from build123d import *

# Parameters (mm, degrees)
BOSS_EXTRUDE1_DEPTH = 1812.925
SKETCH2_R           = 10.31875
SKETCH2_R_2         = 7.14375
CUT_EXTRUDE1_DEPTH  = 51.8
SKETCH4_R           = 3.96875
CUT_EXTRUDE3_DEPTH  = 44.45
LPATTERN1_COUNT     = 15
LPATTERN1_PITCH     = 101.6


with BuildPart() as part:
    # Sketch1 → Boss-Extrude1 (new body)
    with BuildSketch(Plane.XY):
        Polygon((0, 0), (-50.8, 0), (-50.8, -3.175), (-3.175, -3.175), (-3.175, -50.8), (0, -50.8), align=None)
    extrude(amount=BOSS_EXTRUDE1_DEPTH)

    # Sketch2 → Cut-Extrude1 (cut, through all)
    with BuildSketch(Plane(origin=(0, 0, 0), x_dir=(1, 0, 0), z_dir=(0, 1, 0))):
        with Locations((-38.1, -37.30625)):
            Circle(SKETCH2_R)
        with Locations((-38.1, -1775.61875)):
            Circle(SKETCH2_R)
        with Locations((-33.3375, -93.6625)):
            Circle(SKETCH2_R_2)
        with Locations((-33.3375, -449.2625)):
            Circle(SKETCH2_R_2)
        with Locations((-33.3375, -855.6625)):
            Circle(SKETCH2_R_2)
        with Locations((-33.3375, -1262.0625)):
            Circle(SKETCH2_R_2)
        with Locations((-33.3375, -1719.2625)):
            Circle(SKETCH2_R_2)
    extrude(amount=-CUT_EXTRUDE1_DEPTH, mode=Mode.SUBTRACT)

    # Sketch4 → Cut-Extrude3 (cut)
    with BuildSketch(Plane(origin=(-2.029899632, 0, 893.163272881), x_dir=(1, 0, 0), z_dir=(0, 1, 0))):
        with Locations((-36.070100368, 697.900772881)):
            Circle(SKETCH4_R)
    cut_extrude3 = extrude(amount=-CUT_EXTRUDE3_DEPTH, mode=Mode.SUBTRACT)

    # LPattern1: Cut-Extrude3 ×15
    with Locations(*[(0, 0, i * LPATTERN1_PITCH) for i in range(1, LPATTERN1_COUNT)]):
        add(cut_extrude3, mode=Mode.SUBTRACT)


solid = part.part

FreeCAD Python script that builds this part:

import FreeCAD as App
import Part
import Sketcher

V = App.Vector
Q = App.Units.Quantity


def add_polygon(sketch, points):
    """Adds a closed chain of lines whose ends are joined by coincident constraints."""
    first, n = sketch.GeometryCount, len(points)
    for a, b in zip(points, points[1:] + points[:1]):
        sketch.addGeometry(Part.LineSegment(App.Vector(*a, 0), App.Vector(*b, 0)), False)
    for i in range(n):
        sketch.addConstraint(Sketcher.Constraint("Coincident", first + i, 2, first + (i + 1) % n, 1))

doc = App.newDocument("Part")
body = doc.addObject("PartDesign::Body", "Body")

# Sketch on XY plane
sketch1 = body.newObject("Sketcher::SketchObject", "Sketch")
sketch1.AttachmentSupport = (doc.getObject("XY_Plane"), [""])
sketch1.MapMode = "FlatFace"
add_polygon(sketch1, [(0, 0), (-50.8, 0), (-50.8, -3.175), (-3.175, -3.175), (-3.175, -50.8), (0, -50.8)])  # lines 0-5
sketch1.addConstraint(Sketcher.Constraint("Horizontal", 0))
sketch1.addConstraint(Sketcher.Constraint("Vertical", 1))
sketch1.addConstraint(Sketcher.Constraint("Horizontal", 2))
sketch1.addConstraint(Sketcher.Constraint("Vertical", 3))
sketch1.addConstraint(Sketcher.Constraint("Horizontal", 4))
sketch1.addConstraint(Sketcher.Constraint("Vertical", 5))
sketch1.addConstraint(Sketcher.Constraint("Coincident", 5, 2, -1, 1))
sketch1.addConstraint(Sketcher.Constraint("Equal", 4, 1))
sketch1.addConstraint(Sketcher.Constraint("Equal", 2, 3))
sketch1.addConstraint(Sketcher.Constraint("DistanceX", 0, 2, 0, 1, Q("2 in")))
sketch1.addConstraint(Sketcher.Constraint("DistanceX", 2, 1, 2, 2, Q("1.875 in")))
pad1 = body.newObject("PartDesign::Pad", "Pad")
pad1.Profile = sketch1
pad1.Length = Q("71.375 in")

# Sketch on XZ plane
sketch2 = body.newObject("Sketcher::SketchObject", "Sketch001")
sketch2.AttachmentSupport = (doc.getObject("XZ_Plane"), [""])
sketch2.MapMode = "FlatFace"
sketch2.addGeometry(Part.Circle(V(-38.1, 37.30625, 0), V(0, 0, 1), 10.31875), False)
sketch2.addGeometry(Part.Circle(V(-38.1, 1775.61875, 0), V(0, 0, 1), 10.31875), False)
sketch2.addGeometry(Part.Circle(V(-33.3375, 93.6625, 0), V(0, 0, 1), 7.14375), False)
sketch2.addGeometry(Part.Circle(V(-33.3375, 449.2625, 0), V(0, 0, 1), 7.14375), False)
sketch2.addGeometry(Part.Circle(V(-33.3375, 855.6625, 0), V(0, 0, 1), 7.14375), False)
sketch2.addGeometry(Part.Circle(V(-33.3375, 1262.0625, 0), V(0, 0, 1), 7.14375), False)
sketch2.addGeometry(Part.Circle(V(-33.3375, 1719.2625, 0), V(0, 0, 1), 7.14375), False)
sketch2.addConstraint(Sketcher.Constraint("Equal", 0, 1))
sketch2.addConstraint(Sketcher.Constraint("Equal", 2, 3))
sketch2.addConstraint(Sketcher.Constraint("Equal", 3, 4))
sketch2.addConstraint(Sketcher.Constraint("Equal", 4, 5))
sketch2.addConstraint(Sketcher.Constraint("Equal", 5, 6))
sketch2.addConstraint(Sketcher.Constraint("Vertical", 0, 3, 1, 3))
sketch2.addConstraint(Sketcher.Constraint("Vertical", 2, 3, 3, 3))
sketch2.addConstraint(Sketcher.Constraint("Vertical", 3, 3, 4, 3))
sketch2.addConstraint(Sketcher.Constraint("Vertical", 4, 3, 5, 3))
sketch2.addConstraint(Sketcher.Constraint("Vertical", 5, 3, 6, 3))
sketch2.addConstraint(Sketcher.Constraint("Diameter", 0, Q("0.8125 in")))
sketch2.addConstraint(Sketcher.Constraint("Diameter", 2, Q("0.5625 in")))
sketch2.addConstraint(Sketcher.Constraint("DistanceY", 2, 3, 3, 3, Q("14 in")))
sketch2.addConstraint(Sketcher.Constraint("DistanceY", 3, 3, 4, 3, Q("16 in")))
sketch2.addConstraint(Sketcher.Constraint("DistanceY", 4, 3, 5, 3, Q("16 in")))
sketch2.addConstraint(Sketcher.Constraint("DistanceY", 5, 3, 6, 3, Q("18 in")))
sketch2.addConstraint(Sketcher.Constraint("DistanceX", 0, 3, -1, 1, Q("1.5 in")))
sketch2.addConstraint(Sketcher.Constraint("DistanceY", -1, 1, 0, 3, Q("1.46875 in")))
sketch2.addConstraint(Sketcher.Constraint("DistanceY", -1, 1, 1, 3, Q("69.90625 in")))
sketch2.addConstraint(Sketcher.Constraint("DistanceX", 2, 3, -1, 1, Q("1.3125 in")))
sketch2.addConstraint(Sketcher.Constraint("DistanceY", -1, 1, 2, 3, Q("3.6875 in")))
pocket1 = body.newObject("PartDesign::Pocket", "Pocket")
pocket1.Profile = sketch2
pocket1.Type = "ThroughAll"
pocket1.Reversed = True

# Sketch on XZ plane
sketch3 = body.newObject("Sketcher::SketchObject", "Sketch002")
sketch3.AttachmentSupport = (doc.getObject("XZ_Plane"), [""])
sketch3.MapMode = "FlatFace"
sketch3.addGeometry(Part.Circle(V(-38.1, 195.2625, 0), V(0, 0, 1), 3.96875), False)
sketch3.addConstraint(Sketcher.Constraint("Diameter", 0, Q("0.3125 in")))
sketch3.addConstraint(Sketcher.Constraint("DistanceX", 0, 3, -1, 1, Q("1.5 in")))
sketch3.addConstraint(Sketcher.Constraint("DistanceY", -1, 1, 0, 3, Q("7.6875 in")))
pocket2 = body.newObject("PartDesign::Pocket", "Pocket001")
pocket2.Profile = sketch3
pocket2.Length = Q("1.75 in")
pocket2.Reversed = True
doc.recompute()

linearpattern = body.newObject("PartDesign::LinearPattern", "LinearPattern")
linearpattern.Originals = [pocket2]
linearpattern.Direction = (doc.getObject("Z_Axis"), [""])
linearpattern.Mode = "offset"
linearpattern.Offset = Q("4 in")
linearpattern.Occurrences = 15
body.Tip = linearpattern

doc.recompute()
